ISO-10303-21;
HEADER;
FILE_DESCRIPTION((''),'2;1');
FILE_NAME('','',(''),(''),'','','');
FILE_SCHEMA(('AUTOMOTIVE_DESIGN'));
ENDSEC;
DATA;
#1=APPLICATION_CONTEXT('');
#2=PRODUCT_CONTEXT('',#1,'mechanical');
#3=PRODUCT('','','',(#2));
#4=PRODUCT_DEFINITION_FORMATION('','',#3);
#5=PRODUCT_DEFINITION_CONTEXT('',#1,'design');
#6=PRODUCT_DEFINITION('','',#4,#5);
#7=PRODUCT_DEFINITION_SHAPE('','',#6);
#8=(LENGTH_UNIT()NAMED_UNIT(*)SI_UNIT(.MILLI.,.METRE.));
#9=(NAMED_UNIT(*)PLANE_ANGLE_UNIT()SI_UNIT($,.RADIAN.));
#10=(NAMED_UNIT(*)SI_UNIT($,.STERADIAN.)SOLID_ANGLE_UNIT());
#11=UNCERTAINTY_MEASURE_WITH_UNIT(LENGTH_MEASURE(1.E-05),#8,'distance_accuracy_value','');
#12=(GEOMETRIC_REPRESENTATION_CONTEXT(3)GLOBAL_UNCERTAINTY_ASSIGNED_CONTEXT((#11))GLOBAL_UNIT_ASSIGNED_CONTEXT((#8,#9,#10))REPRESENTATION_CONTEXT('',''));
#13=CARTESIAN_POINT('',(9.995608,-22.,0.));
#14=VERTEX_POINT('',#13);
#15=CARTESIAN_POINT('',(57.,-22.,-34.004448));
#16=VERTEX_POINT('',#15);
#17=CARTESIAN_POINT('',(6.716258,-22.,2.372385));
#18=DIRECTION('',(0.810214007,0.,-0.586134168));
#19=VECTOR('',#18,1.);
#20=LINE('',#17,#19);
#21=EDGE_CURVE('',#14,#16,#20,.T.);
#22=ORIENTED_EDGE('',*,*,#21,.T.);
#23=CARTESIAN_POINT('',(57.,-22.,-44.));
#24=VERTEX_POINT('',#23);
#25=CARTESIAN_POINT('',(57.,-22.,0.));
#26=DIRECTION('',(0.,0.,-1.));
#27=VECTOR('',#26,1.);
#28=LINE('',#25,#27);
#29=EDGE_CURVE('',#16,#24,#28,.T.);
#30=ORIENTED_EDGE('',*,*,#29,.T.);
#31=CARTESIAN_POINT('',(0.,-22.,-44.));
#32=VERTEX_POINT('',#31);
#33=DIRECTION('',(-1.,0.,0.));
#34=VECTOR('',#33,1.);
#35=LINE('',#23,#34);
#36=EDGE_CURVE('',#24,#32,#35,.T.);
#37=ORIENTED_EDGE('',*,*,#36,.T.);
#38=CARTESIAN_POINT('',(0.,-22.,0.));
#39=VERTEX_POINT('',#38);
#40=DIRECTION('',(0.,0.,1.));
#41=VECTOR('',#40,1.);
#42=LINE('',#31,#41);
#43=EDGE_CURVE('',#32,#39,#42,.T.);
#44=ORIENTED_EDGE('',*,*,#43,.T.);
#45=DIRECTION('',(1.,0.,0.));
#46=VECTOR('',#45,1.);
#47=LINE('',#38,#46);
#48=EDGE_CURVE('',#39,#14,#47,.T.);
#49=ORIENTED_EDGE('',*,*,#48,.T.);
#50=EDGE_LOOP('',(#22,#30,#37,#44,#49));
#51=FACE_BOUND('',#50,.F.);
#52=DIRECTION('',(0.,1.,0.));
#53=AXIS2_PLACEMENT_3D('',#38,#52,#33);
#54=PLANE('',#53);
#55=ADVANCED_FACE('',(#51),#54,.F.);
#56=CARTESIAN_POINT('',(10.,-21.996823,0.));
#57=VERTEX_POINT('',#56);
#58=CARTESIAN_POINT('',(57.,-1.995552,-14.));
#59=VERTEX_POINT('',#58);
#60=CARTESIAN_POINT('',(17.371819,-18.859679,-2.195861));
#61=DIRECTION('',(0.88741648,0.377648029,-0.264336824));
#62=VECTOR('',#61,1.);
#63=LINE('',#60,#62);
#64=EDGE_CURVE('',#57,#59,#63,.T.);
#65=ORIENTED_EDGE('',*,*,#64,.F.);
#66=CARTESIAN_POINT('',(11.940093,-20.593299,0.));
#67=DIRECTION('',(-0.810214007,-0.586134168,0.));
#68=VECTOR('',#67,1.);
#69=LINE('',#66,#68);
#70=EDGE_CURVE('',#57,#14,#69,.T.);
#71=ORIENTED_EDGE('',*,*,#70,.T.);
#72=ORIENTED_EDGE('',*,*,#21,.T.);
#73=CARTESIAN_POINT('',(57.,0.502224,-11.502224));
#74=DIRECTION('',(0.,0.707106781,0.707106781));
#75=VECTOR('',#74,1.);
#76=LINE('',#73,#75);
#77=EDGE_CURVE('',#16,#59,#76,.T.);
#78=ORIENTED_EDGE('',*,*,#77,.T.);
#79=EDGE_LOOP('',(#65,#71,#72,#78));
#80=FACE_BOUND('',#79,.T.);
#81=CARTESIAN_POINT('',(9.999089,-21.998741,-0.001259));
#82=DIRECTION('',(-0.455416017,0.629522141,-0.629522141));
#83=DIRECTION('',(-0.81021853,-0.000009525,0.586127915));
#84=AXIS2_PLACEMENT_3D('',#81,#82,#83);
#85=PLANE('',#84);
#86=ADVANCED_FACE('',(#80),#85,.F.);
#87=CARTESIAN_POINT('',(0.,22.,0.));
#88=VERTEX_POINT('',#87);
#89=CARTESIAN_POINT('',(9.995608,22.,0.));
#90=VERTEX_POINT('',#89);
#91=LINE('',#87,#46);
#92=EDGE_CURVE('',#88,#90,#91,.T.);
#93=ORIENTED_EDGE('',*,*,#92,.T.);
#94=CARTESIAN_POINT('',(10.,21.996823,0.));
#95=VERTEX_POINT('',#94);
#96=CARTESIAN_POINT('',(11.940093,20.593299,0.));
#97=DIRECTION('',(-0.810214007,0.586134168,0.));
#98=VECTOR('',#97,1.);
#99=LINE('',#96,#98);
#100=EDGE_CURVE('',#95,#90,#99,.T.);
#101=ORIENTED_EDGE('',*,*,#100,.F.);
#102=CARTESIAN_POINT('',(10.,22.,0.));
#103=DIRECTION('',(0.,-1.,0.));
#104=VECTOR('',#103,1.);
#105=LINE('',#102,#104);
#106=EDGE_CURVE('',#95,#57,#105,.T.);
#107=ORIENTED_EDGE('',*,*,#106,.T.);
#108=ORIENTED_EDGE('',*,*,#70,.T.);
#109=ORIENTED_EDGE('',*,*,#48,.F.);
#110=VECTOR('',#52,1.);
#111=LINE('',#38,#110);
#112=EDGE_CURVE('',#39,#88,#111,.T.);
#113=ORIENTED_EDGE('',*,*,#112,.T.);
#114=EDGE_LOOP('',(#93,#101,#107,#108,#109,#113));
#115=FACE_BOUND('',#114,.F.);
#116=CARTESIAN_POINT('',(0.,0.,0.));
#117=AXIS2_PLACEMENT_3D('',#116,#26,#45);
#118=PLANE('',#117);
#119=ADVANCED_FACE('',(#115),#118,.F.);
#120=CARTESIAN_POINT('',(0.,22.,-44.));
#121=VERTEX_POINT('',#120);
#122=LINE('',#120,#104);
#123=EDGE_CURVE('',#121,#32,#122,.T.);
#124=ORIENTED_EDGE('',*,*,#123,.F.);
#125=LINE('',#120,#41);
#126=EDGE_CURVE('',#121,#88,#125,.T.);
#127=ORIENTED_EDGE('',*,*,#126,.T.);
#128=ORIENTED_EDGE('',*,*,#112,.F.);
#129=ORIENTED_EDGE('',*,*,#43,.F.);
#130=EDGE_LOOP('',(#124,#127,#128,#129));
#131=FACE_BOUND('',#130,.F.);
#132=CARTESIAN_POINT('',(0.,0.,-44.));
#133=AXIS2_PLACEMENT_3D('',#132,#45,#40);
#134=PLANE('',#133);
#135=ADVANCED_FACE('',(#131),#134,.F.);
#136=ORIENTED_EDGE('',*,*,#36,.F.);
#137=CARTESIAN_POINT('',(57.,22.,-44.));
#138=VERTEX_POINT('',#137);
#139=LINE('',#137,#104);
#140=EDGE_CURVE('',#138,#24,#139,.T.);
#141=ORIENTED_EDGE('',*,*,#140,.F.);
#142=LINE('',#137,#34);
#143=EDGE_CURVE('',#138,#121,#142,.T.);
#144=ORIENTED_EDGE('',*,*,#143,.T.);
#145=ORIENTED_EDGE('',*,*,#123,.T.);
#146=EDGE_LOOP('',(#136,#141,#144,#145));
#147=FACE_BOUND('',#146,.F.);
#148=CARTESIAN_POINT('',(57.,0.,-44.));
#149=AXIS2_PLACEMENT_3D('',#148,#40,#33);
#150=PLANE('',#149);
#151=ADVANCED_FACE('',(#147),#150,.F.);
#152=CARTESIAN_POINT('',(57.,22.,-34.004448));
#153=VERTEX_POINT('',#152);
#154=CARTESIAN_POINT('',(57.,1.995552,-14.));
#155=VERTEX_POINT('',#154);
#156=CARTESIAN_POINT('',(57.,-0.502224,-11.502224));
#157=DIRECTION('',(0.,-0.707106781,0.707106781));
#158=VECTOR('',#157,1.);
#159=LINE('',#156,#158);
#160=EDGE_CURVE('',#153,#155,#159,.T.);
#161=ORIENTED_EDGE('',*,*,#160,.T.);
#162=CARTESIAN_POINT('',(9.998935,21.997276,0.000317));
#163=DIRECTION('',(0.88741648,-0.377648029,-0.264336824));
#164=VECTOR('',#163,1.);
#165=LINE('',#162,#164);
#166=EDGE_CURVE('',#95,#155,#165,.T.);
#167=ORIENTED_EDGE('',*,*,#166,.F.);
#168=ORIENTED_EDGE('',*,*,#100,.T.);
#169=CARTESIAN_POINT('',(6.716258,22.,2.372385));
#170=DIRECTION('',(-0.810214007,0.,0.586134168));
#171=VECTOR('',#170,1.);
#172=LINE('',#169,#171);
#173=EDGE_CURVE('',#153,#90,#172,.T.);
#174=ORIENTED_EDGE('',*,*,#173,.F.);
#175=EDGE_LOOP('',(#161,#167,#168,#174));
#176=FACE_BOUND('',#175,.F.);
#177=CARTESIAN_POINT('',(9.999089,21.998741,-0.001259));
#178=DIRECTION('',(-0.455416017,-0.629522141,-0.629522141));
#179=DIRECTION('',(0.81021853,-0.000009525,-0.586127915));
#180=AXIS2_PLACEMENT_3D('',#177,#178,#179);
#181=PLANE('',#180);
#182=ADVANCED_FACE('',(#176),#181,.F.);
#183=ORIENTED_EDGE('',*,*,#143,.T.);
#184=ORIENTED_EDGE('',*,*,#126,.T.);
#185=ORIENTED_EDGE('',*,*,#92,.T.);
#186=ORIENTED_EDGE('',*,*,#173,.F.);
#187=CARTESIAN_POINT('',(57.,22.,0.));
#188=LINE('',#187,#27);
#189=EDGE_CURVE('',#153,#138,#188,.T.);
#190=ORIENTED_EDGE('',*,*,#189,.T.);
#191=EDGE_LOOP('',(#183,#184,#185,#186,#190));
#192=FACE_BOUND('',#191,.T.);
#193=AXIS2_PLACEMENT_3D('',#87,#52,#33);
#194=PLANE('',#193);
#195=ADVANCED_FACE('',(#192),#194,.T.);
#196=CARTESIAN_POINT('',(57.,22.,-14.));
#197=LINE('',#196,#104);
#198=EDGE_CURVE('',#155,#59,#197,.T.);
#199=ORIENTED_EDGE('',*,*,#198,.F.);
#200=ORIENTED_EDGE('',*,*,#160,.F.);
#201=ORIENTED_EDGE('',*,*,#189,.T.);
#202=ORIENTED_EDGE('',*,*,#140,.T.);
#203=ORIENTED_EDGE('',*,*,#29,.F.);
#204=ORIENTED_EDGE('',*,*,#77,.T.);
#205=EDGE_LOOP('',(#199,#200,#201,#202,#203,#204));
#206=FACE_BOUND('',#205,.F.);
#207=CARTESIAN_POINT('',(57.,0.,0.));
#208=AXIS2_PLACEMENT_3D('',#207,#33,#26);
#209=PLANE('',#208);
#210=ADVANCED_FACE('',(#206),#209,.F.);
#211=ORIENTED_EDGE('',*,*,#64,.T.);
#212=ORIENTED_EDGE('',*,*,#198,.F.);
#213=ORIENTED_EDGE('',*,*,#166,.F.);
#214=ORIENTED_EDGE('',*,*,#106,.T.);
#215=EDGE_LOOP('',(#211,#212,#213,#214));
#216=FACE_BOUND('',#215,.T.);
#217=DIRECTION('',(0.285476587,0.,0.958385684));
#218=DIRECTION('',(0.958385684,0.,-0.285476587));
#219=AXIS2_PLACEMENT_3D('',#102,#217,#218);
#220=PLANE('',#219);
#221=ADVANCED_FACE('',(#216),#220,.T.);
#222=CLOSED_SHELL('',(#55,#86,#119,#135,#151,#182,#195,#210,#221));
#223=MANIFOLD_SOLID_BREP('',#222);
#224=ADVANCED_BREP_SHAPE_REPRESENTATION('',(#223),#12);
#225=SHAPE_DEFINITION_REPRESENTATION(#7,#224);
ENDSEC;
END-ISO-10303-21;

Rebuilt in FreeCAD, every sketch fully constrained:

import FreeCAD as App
import Part
import Sketcher

doc = App.newDocument("Part")
params = doc.addObject("Spreadsheet::Sheet", "Params")
for row, (alias, value) in enumerate([
    ("sketch1_width", "57 mm"),
    ("sketch1_height", "44 mm"),
    ("pad1_length", "44 mm"),
    ("sketch2_width", "47 mm"),
    ("sketch2_height", "14 mm"),
    ("pocket1_length", "60 mm"),
    ("pocket2_length", "40 mm"),
], start=1):
    params.set(f"A{row}", alias)
    params.set(f"B{row}", "=" + value)
    params.setAlias(f"B{row}", alias)

body = doc.addObject("PartDesign::Body", "Body")

# Sketch on XZ plane
sketch1 = body.newObject("Sketcher::SketchObject", "Sketch")
sketch1.AttachmentSupport = (doc.getObject("XZ_Plane"), [""])
sketch1.MapMode = "FlatFace"
sketch1.addGeometry(Part.LineSegment(App.Vector(0, -44, 0), App.Vector(0, 0, 0)), False)
sketch1.addGeometry(Part.LineSegment(App.Vector(0, 0, 0), App.Vector(57, 0, 0)), False)
sketch1.addGeometry(Part.LineSegment(App.Vector(57, 0, 0), App.Vector(57, -44, 0)), False)
sketch1.addGeometry(Part.LineSegment(App.Vector(57, -44, 0), App.Vector(0, -44, 0)), False)
sketch1.addConstraint(Sketcher.Constraint("Coincident", 0, 2, 1, 1))
sketch1.addConstraint(Sketcher.Constraint("Coincident", 1, 2, 2, 1))
sketch1.addConstraint(Sketcher.Constraint("Coincident", 2, 2, 3, 1))
sketch1.addConstraint(Sketcher.Constraint("Coincident", 3, 2, 0, 1))
sketch1.addConstraint(Sketcher.Constraint("Vertical", 0))
sketch1.addConstraint(Sketcher.Constraint("Horizontal", 1))
sketch1.addConstraint(Sketcher.Constraint("Vertical", 2))
sketch1.addConstraint(Sketcher.Constraint("Horizontal", 3))
sketch1.addConstraint(Sketcher.Constraint("Coincident", 0, 2, -1, 1))
sketch1.addConstraint(Sketcher.Constraint("DistanceX", 1, 1, 1, 2, 57.0))
sketch1.addConstraint(Sketcher.Constraint("DistanceY", 0, 1, 0, 2, 44.0))
sketch1.setExpression("Constraints[9]", "Params.sketch1_width")
sketch1.setExpression("Constraints[10]", "Params.sketch1_height")
pad1 = body.newObject("PartDesign::Pad", "Pad")
pad1.Profile = sketch1
pad1.setExpression("Length", "Params.pad1_length")
pad1.Midplane = True

# Sketch on XZ plane
sketch2 = body.newObject("Sketcher::SketchObject", "Sketch001")
sketch2.AttachmentSupport = (doc.getObject("XZ_Plane"), [""])
sketch2.MapMode = "FlatFace"
sketch2.AttachmentOffset = App.Placement(App.Vector(0, 0, -22), App.Rotation())
sketch2.addGeometry(Part.LineSegment(App.Vector(57, -14, 0), App.Vector(10, 0, 0)), False)
sketch2.addGeometry(Part.LineSegment(App.Vector(10, 0, 0), App.Vector(57, 0, 0)), False)
sketch2.addGeometry(Part.LineSegment(App.Vector(57, 0, 0), App.Vector(57, -14, 0)), False)
sketch2.addConstraint(Sketcher.Constraint("Coincident", 0, 2, 1, 1))
sketch2.addConstraint(Sketcher.Constraint("Coincident", 1, 2, 2, 1))
sketch2.addConstraint(Sketcher.Constraint("Coincident", 2, 2, 0, 1))
sketch2.addConstraint(Sketcher.Constraint("Horizontal", 1))
sketch2.addConstraint(Sketcher.Constraint("Vertical", 2))
sketch2.addConstraint(Sketcher.Constraint("PointOnObject", 0, 2, -1))
sketch2.addConstraint(Sketcher.Constraint("DistanceX", -1, 1, 0, 2, 10.0))
sketch2.addConstraint(Sketcher.Constraint("DistanceX", 1, 1, 1, 2, 47.0))
sketch2.addConstraint(Sketcher.Constraint("DistanceY", 2, 2, 2, 1, 14.0))
sketch2.setExpression("Constraints[7]", "Params.sketch2_width")
sketch2.setExpression("Constraints[8]", "Params.sketch2_height")
pocket1 = body.newObject("PartDesign::Pocket", "Pocket")
pocket1.Profile = sketch2
pocket1.setExpression("Length", "Params.pocket1_length")
pocket1.Reversed = True

# Sketch on an angled plane
sketch3 = body.newObject("Sketcher::SketchObject", "Sketch002")
sketch3.Placement = App.Placement(App.Vector(10, 22, 0), App.Rotation(App.Vector(0.81021853, -0.000009525, -0.586127915), App.Vector(0.368974504, -0.776982544, 0.510054842), App.Vector(-0.455416017, -0.629522141, -0.629522141), "ZXY"))
sketch3.addGeometry(Part.LineSegment(App.Vector(-15, 29, 0), App.Vector(-15, -12, 0)), False)
sketch3.addGeometry(Part.LineSegment(App.Vector(-15, -12, 0), App.Vector(94, -12, 0)), False)
sketch3.addGeometry(Part.LineSegment(App.Vector(94, -12, 0), App.Vector(94, 29, 0)), False)
sketch3.addGeometry(Part.LineSegment(App.Vector(94, 29, 0), App.Vector(-15, 29, 0)), False)
sketch3.addConstraint(Sketcher.Constraint("Coincident", 0, 2, 1, 1))
sketch3.addConstraint(Sketcher.Constraint("Coincident", 1, 2, 2, 1))
sketch3.addConstraint(Sketcher.Constraint("Coincident", 2, 2, 3, 1))
sketch3.addConstraint(Sketcher.Constraint("Coincident", 3, 2, 0, 1))
sketch3.addConstraint(Sketcher.Constraint("Vertical", 0))
sketch3.addConstraint(Sketcher.Constraint("Horizontal", 1))
sketch3.addConstraint(Sketcher.Constraint("Vertical", 2))
sketch3.addConstraint(Sketcher.Constraint("Horizontal", 3))
sketch3.addConstraint(Sketcher.Constraint("DistanceX", 1, 1, 1, 2, 108.8713))
sketch3.addConstraint(Sketcher.Constraint("DistanceY", 0, 2, 0, 1, 41.1384))
sketch3.addConstraint(Sketcher.Constraint("DistanceX", -1, 1, 1, 2, 93.717))
sketch3.addConstraint(Sketcher.Constraint("DistanceY", 0, 2, -1, 1, 12.3218))
pocket2 = body.newObject("PartDesign::Pocket", "Pocket001")
pocket2.Profile = sketch3
pocket2.setExpression("Length", "Params.pocket2_length")
doc.recompute()

mirrored = body.newObject("PartDesign::Mirrored", "Mirrored")
mirrored.Originals = [pocket2]
mirrored.MirrorPlane = (doc.getObject("XZ_Plane"), [""])
body.Tip = mirrored

doc.recompute()
